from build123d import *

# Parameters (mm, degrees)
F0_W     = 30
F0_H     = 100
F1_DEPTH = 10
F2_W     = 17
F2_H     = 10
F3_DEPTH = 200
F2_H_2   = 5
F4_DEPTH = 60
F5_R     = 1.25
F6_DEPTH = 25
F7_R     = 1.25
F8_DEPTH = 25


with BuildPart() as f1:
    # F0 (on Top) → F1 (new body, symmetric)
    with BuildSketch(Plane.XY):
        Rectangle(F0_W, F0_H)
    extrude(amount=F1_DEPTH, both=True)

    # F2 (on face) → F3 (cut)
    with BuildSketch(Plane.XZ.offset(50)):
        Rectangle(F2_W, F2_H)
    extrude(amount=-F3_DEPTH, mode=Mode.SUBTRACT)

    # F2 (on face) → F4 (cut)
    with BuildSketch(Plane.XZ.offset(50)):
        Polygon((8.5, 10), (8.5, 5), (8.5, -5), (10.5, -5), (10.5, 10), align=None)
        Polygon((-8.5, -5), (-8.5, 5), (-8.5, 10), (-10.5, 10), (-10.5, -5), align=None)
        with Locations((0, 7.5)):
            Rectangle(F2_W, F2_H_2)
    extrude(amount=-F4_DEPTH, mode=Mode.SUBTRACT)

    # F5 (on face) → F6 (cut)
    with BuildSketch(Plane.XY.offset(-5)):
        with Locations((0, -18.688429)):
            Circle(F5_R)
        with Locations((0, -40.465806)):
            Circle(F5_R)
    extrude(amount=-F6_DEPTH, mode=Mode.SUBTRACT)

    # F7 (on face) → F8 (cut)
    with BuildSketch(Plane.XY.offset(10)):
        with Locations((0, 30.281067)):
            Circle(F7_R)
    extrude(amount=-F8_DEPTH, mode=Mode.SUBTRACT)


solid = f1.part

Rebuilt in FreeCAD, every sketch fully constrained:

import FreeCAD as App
import Part
import Sketcher
from FreeCAD import Vector


def add_polygon(sketch, points):
    """Adds a closed chain of lines whose ends are joined by coincident constraints."""
    first, n = sketch.GeometryCount, len(points)
    for a, b in zip(points, points[1:] + points[:1]):
        sketch.addGeometry(Part.LineSegment(App.Vector(*a, 0), App.Vector(*b, 0)), False)
    for i in range(n):
        sketch.addConstraint(Sketcher.Constraint("Coincident", first + i, 2, first + (i + 1) % n, 1))

doc = App.newDocument("Part")
body = doc.addObject("PartDesign::Body", "Body")

# Sketch on XY plane
sketch1 = body.newObject("Sketcher::SketchObject", "Sketch")
sketch1.AttachmentSupport = (doc.getObject("XY_Plane"), [""])
sketch1.MapMode = "FlatFace"
add_polygon(sketch1, [(-15, 50), (-15, -50), (15, -50), (15, 50)])  # lines 0-3
sketch1.addConstraint([
    Sketcher.Constraint("Vertical", 0),
    Sketcher.Constraint("Horizontal", 1),
    Sketcher.Constraint("Vertical", 2),
    Sketcher.Constraint("Horizontal", 3),
    Sketcher.Constraint("Symmetric", 0, 2, 2, 2, -1, 1),
    Sketcher.Constraint("DistanceX", 1, 1, 1, 2, 30.0),
    Sketcher.Constraint("DistanceY", 0, 2, 0, 1, 100.0),
])
pad1 = body.newObject("PartDesign::Pad", "Pad")
pad1.Profile = sketch1
pad1.Length = 20
pad1.Midplane = True

# Sketch on XZ plane
sketch2 = body.newObject("Sketcher::SketchObject", "Sketch001")
sketch2.AttachmentSupport = (doc.getObject("XZ_Plane"), [""])
sketch2.MapMode = "FlatFace"
sketch2.AttachmentOffset = App.Placement(Vector(0, 0, 50), App.Rotation())
add_polygon(sketch2, [(-8, 5), (-8, -5), (8, -5), (8, 5)])  # lines 0-3
sketch2.addConstraint([
    Sketcher.Constraint("Vertical", 0),
    Sketcher.Constraint("Horizontal", 1),
    Sketcher.Constraint("Vertical", 2),
    Sketcher.Constraint("Horizontal", 3),
    Sketcher.Constraint("Symmetric", 0, 2, 2, 2, -1, 1),
    Sketcher.Constraint("DistanceX", 1, 1, 1, 2, 17.0),
    Sketcher.Constraint("DistanceY", 0, 2, 0, 1, 10.0),
])
pocket1 = body.newObject("PartDesign::Pocket", "Pocket")
pocket1.Profile = sketch2
pocket1.Length = 200

# Sketch on XZ plane
sketch3 = body.newObject("Sketcher::SketchObject", "Sketch002")
sketch3.AttachmentSupport = (doc.getObject("XZ_Plane"), [""])
sketch3.MapMode = "FlatFace"
sketch3.AttachmentOffset = App.Placement(Vector(0, 0, 50), App.Rotation())
add_polygon(sketch3, [(8.5, 5), (8.5, -5), (10.5, -5), (10.5, 10), (-10.5, 10), (-10.5, -5), (-8.5, -5), (-8.5, 5)])  # lines 0-7
sketch3.addConstraint([
    Sketcher.Constraint("Vertical", 0),
    Sketcher.Constraint("Horizontal", 1),
    Sketcher.Constraint("Vertical", 2),
    Sketcher.Constraint("Horizontal", 3),
    Sketcher.Constraint("Vertical", 4),
    Sketcher.Constraint("Horizontal", 5),
    Sketcher.Constraint("Vertical", 6),
    Sketcher.Constraint("Horizontal", 7),
    Sketcher.Constraint("Symmetric", 0, 2, 6, 2, -1, 1),
    Sketcher.Constraint("Symmetric", 1, 2, 4, 2, -2),
    Sketcher.Constraint("DistanceX", 1, 1, 1, 2, 2.0),
    Sketcher.Constraint("DistanceX", 3, 2, 3, 1, 21.0),
    Sketcher.Constraint("DistanceY", 0, 2, 0, 1, 10.0),
    Sketcher.Constraint("DistanceY", 2, 1, 2, 2, 15.0),
])
pocket2 = body.newObject("PartDesign::Pocket", "Pocket001")
pocket2.Profile = sketch3
pocket2.Length = 60

# Sketch on XY plane
sketch4 = body.newObject("Sketcher::SketchObject", "Sketch003")
sketch4.AttachmentSupport = (doc.getObject("XY_Plane"), [""])
sketch4.MapMode = "FlatFace"
sketch4.AttachmentOffset = App.Placement(Vector(0, 0, -5), App.Rotation())
sketch4.addGeometry([
    Part.Circle(Vector(0, -18.7, 0), Vector(0, 0, 1), 1.2),
    Part.Circle(Vector(0, -40.5, 0), Vector(0, 0, 1), 1.2),
], False)
sketch4.addConstraint([
    Sketcher.Constraint("Equal", 0, 1),
    Sketcher.Constraint("PointOnObject", 0, 3, -2),
    Sketcher.Constraint("PointOnObject", 1, 3, -2),
    Sketcher.Constraint("Diameter", 0, 2.5),
    Sketcher.Constraint("DistanceY", 0, 3, -1, 1, 18.688429),
    Sketcher.Constraint("DistanceY", 1, 3, -1, 1, 40.465806),
])
pocket3 = body.newObject("PartDesign::Pocket", "Pocket002")
pocket3.Profile = sketch4
pocket3.Length = 25

# Sketch on XY plane
sketch5 = body.newObject("Sketcher::SketchObject", "Sketch004")
sketch5.AttachmentSupport = (doc.getObject("XY_Plane"), [""])
sketch5.MapMode = "FlatFace"
sketch5.AttachmentOffset = App.Placement(Vector(0, 0, 10), App.Rotation())
sketch5.addGeometry(Part.Circle(Vector(0, 30.3, 0), Vector(0, 0, 1), 1.2), False)
sketch5.addConstraint([
    Sketcher.Constraint("PointOnObject", 0, 3, -2),
    Sketcher.Constraint("Diameter", 0, 2.5),
    Sketcher.Constraint("DistanceY", -1, 1, 0, 3, 30.281067),
])
pocket4 = body.newObject("PartDesign::Pocket", "Pocket003")
pocket4.Profile = sketch5
pocket4.Length = 25

doc.recompute()
